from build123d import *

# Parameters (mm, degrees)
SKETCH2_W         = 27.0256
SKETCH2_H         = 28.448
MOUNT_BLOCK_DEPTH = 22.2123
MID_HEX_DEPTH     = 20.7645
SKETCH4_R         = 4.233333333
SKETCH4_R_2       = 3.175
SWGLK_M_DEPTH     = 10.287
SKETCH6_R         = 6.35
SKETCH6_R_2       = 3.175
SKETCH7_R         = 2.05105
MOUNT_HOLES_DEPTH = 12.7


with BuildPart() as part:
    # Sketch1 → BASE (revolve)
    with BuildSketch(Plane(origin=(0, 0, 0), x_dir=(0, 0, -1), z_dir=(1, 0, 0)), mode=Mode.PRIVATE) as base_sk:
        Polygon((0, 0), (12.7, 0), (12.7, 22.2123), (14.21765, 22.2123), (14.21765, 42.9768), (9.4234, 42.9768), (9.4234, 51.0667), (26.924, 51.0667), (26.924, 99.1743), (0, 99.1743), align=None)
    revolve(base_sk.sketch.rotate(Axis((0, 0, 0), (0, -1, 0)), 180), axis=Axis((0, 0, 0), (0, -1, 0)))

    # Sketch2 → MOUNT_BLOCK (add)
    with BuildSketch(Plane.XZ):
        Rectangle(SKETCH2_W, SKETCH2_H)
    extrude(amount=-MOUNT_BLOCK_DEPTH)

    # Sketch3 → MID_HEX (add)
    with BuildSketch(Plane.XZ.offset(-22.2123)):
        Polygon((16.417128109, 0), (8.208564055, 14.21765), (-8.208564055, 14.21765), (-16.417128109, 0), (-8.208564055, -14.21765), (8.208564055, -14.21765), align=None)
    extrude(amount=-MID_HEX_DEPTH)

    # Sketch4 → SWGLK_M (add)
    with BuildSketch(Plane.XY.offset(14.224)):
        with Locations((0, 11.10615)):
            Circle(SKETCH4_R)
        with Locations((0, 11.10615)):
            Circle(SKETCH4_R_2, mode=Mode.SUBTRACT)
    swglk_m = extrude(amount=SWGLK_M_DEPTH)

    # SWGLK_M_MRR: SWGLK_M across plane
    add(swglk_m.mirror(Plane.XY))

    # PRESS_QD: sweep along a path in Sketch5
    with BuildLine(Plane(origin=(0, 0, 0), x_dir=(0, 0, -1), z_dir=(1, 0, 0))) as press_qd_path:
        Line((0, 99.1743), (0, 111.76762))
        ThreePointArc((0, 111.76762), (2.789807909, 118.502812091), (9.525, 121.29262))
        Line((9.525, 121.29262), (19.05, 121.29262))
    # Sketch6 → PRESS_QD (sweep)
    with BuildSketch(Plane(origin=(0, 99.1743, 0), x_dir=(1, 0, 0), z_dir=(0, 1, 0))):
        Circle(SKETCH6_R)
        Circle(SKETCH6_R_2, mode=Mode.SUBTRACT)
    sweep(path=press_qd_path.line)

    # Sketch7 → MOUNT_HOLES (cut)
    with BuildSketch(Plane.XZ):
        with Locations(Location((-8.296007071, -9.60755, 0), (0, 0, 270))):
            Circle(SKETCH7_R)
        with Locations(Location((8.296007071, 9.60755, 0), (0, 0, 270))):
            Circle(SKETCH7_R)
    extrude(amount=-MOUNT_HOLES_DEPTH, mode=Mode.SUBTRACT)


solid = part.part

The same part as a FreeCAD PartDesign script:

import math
import FreeCAD as App
import Part
import Sketcher

V = App.Vector
Q = App.Units.Quantity

doc = App.newDocument("Part")
body = doc.addObject("PartDesign::Body", "Body")

# Sketch on YZ plane
sketch1 = body.newObject("Sketcher::SketchObject", "Sketch")
sketch1.AttachmentSupport = (doc.getObject("YZ_Plane"), [""])
sketch1.MapMode = "FlatFace"
sketch1.addGeometry([
    Part.LineSegment(V(0, 0, 0), V(0, -12.7, 0)),  # 0
    Part.LineSegment(V(0, -12.7, 0), V(22.2, -12.7, 0)),  # 1
    Part.LineSegment(V(22.2, -12.7, 0), V(22.2, -14.2, 0)),  # 2
    Part.LineSegment(V(22.2, -14.2, 0), V(43, -14.2, 0)),  # 3
    Part.LineSegment(V(43, -14.2, 0), V(43, -9.4, 0)),  # 4
    Part.LineSegment(V(43, -9.4, 0), V(51.1, -9.4, 0)),  # 5
    Part.LineSegment(V(51.1, -9.4, 0), V(51.1, -26.9, 0)),  # 6
    Part.LineSegment(V(51.1, -26.9, 0), V(99.2, -26.9, 0)),  # 7
    Part.LineSegment(V(99.2, -26.9, 0), V(99.2, 0, 0)),  # 8
    Part.LineSegment(V(99.2, 0, 0), V(0, 0, 0)),  # 9
], False)
sketch1.addConstraint([
    Sketcher.Constraint("Coincident", 0, 2, 1, 1),
    Sketcher.Constraint("Coincident", 1, 2, 2, 1),
    Sketcher.Constraint("Coincident", 2, 2, 3, 1),
    Sketcher.Constraint("Coincident", 3, 2, 4, 1),
    Sketcher.Constraint("Coincident", 4, 2, 5, 1),
    Sketcher.Constraint("Coincident", 5, 2, 6, 1),
    Sketcher.Constraint("Coincident", 6, 2, 7, 1),
    Sketcher.Constraint("Coincident", 7, 2, 8, 1),
    Sketcher.Constraint("Coincident", 8, 2, 9, 1),
    Sketcher.Constraint("Coincident", 9, 2, 0, 1),
    Sketcher.Constraint("Vertical", 0),
    Sketcher.Constraint("Horizontal", 1),
    Sketcher.Constraint("Vertical", 2),
    Sketcher.Constraint("Horizontal", 3),
    Sketcher.Constraint("Vertical", 4),
    Sketcher.Constraint("Horizontal", 5),
    Sketcher.Constraint("Vertical", 6),
    Sketcher.Constraint("Horizontal", 7),
    Sketcher.Constraint("Vertical", 8),
    Sketcher.Constraint("Horizontal", 9),
    Sketcher.Constraint("Coincident", 9, 2, -1, 1),
    Sketcher.Constraint("DistanceY", 0, 2, 0, 1, Q("0.5 in")),
    Sketcher.Constraint("DistanceY", 8, 1, 8, 2, Q("1.06 in")),
    Sketcher.Constraint("DistanceX", 7, 1, 7, 2, Q("1.894 in")),
    Sketcher.Constraint("DistanceY", 6, 2, 6, 1, Q("0.689 in")),
    Sketcher.Constraint("DistanceX", 2, 2, 7, 2, Q("3.03 in")),
    Sketcher.Constraint("DistanceX", 1, 1, 1, 2, Q("0.8745 in")),
    Sketcher.Constraint("DistanceX", 3, 1, 3, 2, Q("0.8175 in")),
    Sketcher.Constraint("DistanceY", 2, 2, 2, 1, Q("1.51765 mm")),
])
revolution = body.newObject("PartDesign::Revolution", "Revolution")
revolution.Profile = sketch1
revolution.ReferenceAxis = (sketch1, ["H_Axis"])
revolution.Angle = 360

# Sketch on XZ plane
sketch2 = body.newObject("Sketcher::SketchObject", "Sketch001")
sketch2.AttachmentSupport = (doc.getObject("XZ_Plane"), [""])
sketch2.MapMode = "FlatFace"
sketch2.addGeometry([
    Part.LineSegment(V(-14, 14, 0), V(-14, -14, 0)),
    Part.LineSegment(V(-14, -14, 0), V(14, -14, 0)),
    Part.LineSegment(V(14, -14, 0), V(14, 14, 0)),
    Part.LineSegment(V(14, 14, 0), V(-14, 14, 0)),
], False)
sketch2.addConstraint([
    Sketcher.Constraint("Coincident", 0, 2, 1, 1),
    Sketcher.Constraint("Coincident", 1, 2, 2, 1),
    Sketcher.Constraint("Coincident", 2, 2, 3, 1),
    Sketcher.Constraint("Coincident", 3, 2, 0, 1),
    Sketcher.Constraint("Vertical", 0),
    Sketcher.Constraint("Horizontal", 1),
    Sketcher.Constraint("Vertical", 2),
    Sketcher.Constraint("Horizontal", 3),
    Sketcher.Constraint("Symmetric", 0, 2, 2, 2, -1, 1),
    Sketcher.Constraint("DistanceY", 0, 2, 0, 1, Q("1.12 in")),
    Sketcher.Constraint("DistanceX", 1, 1, 1, 2, Q("1.064 in")),
])
pad1 = body.newObject("PartDesign::Pad", "Pad")
pad1.Profile = sketch2
pad1.Length = Q("0.8745 in")
pad1.Reversed = True

# Sketch on XZ plane
sketch3 = body.newObject("Sketcher::SketchObject", "Sketch002")
sketch3.AttachmentSupport = (doc.getObject("XZ_Plane"), [""])
sketch3.MapMode = "FlatFace"
sketch3.AttachmentOffset = App.Placement(V(0, 0, -0.8745 * 25.4), App.Rotation())
sketch3.addGeometry([
    Part.LineSegment(V(16, 0, 0), V(8, 14, 0)),  # 0
    Part.LineSegment(V(8, 14, 0), V(-8, 14, 0)),  # 1
    Part.LineSegment(V(-8, 14, 0), V(-16, 0, 0)),  # 2
    Part.LineSegment(V(-16, 0, 0), V(-8, -14, 0)),  # 3
    Part.LineSegment(V(-8, -14, 0), V(8, -14, 0)),  # 4
    Part.LineSegment(V(8, -14, 0), V(16, 0, 0)),  # 5
], False)
sketch3.addConstraint([
    Sketcher.Constraint("Coincident", 0, 2, 1, 1),
    Sketcher.Constraint("Coincident", 1, 2, 2, 1),
    Sketcher.Constraint("Coincident", 2, 2, 3, 1),
    Sketcher.Constraint("Coincident", 3, 2, 4, 1),
    Sketcher.Constraint("Coincident", 4, 2, 5, 1),
    Sketcher.Constraint("Coincident", 5, 2, 0, 1),
    Sketcher.Constraint("Horizontal", 1),
    Sketcher.Constraint("Horizontal", 4),
    Sketcher.Constraint("Symmetric", 0, 2, 3, 2, -1, 1),
    Sketcher.Constraint("Symmetric", 2, 2, 5, 2, -1, 1),
    Sketcher.Constraint("PointOnObject", 2, 2, -1),
    Sketcher.Constraint("Parallel", 2, 5),
    Sketcher.Constraint("Vertical", 1, 2, 3, 2),
    Sketcher.Constraint("Angle", 0, Q("120 deg")),
    Sketcher.Constraint("DistanceY", 3, 2, 1, 2, Q("1.1195 in")),
    Sketcher.Constraint("DistanceX", 1, 2, 1, 1, Q("16.417128 mm")),
])
pad2 = body.newObject("PartDesign::Pad", "Pad001")
pad2.Profile = sketch3
pad2.Length = Q("0.8175 in")
pad2.Reversed = True

# Sketch on XY plane
sketch4 = body.newObject("Sketcher::SketchObject", "Sketch003")
sketch4.AttachmentSupport = (doc.getObject("XY_Plane"), [""])
sketch4.MapMode = "FlatFace"
sketch4.AttachmentOffset = App.Placement(V(0, 0, 0.56 * 25.4), App.Rotation())
sketch4.addGeometry([
    Part.Circle(V(0, 11.1, 0), V(0, 0, 1), 4.2),
    Part.Circle(V(0, 11.1, 0), V(0, 0, 1), 3.2),
], False)
sketch4.addConstraint([
    Sketcher.Constraint("Coincident", 1, 3, 0, 3),
    Sketcher.Constraint("PointOnObject", 0, 3, -2),
    Sketcher.Constraint("Diameter", 1, Q("0.25 in")),
    Sketcher.Constraint("Diameter", 0, Q("8.466667 mm")),
    Sketcher.Constraint("DistanceY", -1, 1, 0, 3, Q("11.10615 mm")),
])
pad3 = body.newObject("PartDesign::Pad", "Pad002")
pad3.Profile = sketch4
pad3.Length = Q("0.405 in")
doc.recompute()

mirrored = body.newObject("PartDesign::Mirrored", "Mirrored")
mirrored.Originals = [pad3]
mirrored.MirrorPlane = (doc.getObject("XY_Plane"), [""])
body.Tip = mirrored

# Sketch on XZ plane
sketch5 = body.newObject("Sketcher::SketchObject", "Sketch004")
sketch5.AttachmentSupport = (doc.getObject("XZ_Plane"), [""])
sketch5.MapMode = "FlatFace"
sketch5.AttachmentOffset = App.Placement(V(0, 0, -3.9045 * 25.4), App.Rotation())
sketch5.addGeometry([
    Part.Circle(V(0, 0, 0), V(0, 0, 1), 6.3),
    Part.Circle(V(0, 0, 0), V(0, 0, 1), 3.2),
], False)
sketch5.addConstraint([
    Sketcher.Constraint("Coincident", 0, 3, -1, 1),
    Sketcher.Constraint("Coincident", 1, 3, -1, 1),
    Sketcher.Constraint("Diameter", 0, Q("0.5 in")),
    Sketcher.Constraint("Diameter", 1, Q("0.25 in")),
])

# Sketch on YZ plane
sketch6 = body.newObject("Sketcher::SketchObject", "Sketch005")
sketch6.AttachmentSupport = (doc.getObject("YZ_Plane"), [""])
sketch6.MapMode = "FlatFace"
sketch6.addGeometry([
    Part.LineSegment(V(99, 0, 0), V(112, 0, 0)),
    Part.ArcOfCircle(Part.Circle(V(112, -10, 0), V(0, 0, 1), 10), math.radians(0), math.radians(90)),
    Part.LineSegment(V(121, -10, 0), V(121, -19, 0)),
], False)
sketch6.addConstraint([
    Sketcher.Constraint("Tangent", 0, 2, 1, 2),
    Sketcher.Constraint("Tangent", 1, 1, 2, 1),
    Sketcher.Constraint("Horizontal", 0),
    Sketcher.Constraint("Vertical", 2),
    Sketcher.Constraint("PointOnObject", 0, 1, -1),
    Sketcher.Constraint("Radius", 1, Q("0.375 in")),
    Sketcher.Constraint("DistanceY", 2, 2, 2, 1, Q("0.375 in")),
    Sketcher.Constraint("DistanceX", 0, 1, 0, 2, Q("0.4958 in")),
    Sketcher.Constraint("DistanceX", -1, 1, 1, 3, Q("4.4003 in")),
])
doc.recompute()

additivepipe = body.newObject("PartDesign::AdditivePipe", "AdditivePipe")
additivepipe.Profile = sketch5
additivepipe.Spine = (sketch6, ["Edge1", "Edge2", "Edge3"])

# Sketch on XZ plane
sketch7 = body.newObject("Sketcher::SketchObject", "Sketch006")
sketch7.AttachmentSupport = (doc.getObject("XZ_Plane"), [""])
sketch7.MapMode = "FlatFace"
sketch7.addGeometry([
    Part.Circle(V(-8.3, -9.6, 0), V(0, 0, 1), 2.1),
    Part.Circle(V(8.3, 9.6, 0), V(0, 0, 1), 2.1),
], False)
sketch7.addConstraint([
    Sketcher.Constraint("Equal", 0, 1),
    Sketcher.Constraint("Symmetric", 0, 3, 1, 3, -1, 1),
    Sketcher.Constraint("Diameter", 0, Q("0.1615 in")),
    Sketcher.Constraint("DistanceY", 0, 3, 1, 3, Q("0.7565 in")),
    Sketcher.Constraint("DistanceX", 0, 3, -1, 1, Q("8.296007 mm")),
])
pocket1 = body.newObject("PartDesign::Pocket", "Pocket")
pocket1.Profile = sketch7
pocket1.Length = Q("0.5 in")

doc.recompute()
